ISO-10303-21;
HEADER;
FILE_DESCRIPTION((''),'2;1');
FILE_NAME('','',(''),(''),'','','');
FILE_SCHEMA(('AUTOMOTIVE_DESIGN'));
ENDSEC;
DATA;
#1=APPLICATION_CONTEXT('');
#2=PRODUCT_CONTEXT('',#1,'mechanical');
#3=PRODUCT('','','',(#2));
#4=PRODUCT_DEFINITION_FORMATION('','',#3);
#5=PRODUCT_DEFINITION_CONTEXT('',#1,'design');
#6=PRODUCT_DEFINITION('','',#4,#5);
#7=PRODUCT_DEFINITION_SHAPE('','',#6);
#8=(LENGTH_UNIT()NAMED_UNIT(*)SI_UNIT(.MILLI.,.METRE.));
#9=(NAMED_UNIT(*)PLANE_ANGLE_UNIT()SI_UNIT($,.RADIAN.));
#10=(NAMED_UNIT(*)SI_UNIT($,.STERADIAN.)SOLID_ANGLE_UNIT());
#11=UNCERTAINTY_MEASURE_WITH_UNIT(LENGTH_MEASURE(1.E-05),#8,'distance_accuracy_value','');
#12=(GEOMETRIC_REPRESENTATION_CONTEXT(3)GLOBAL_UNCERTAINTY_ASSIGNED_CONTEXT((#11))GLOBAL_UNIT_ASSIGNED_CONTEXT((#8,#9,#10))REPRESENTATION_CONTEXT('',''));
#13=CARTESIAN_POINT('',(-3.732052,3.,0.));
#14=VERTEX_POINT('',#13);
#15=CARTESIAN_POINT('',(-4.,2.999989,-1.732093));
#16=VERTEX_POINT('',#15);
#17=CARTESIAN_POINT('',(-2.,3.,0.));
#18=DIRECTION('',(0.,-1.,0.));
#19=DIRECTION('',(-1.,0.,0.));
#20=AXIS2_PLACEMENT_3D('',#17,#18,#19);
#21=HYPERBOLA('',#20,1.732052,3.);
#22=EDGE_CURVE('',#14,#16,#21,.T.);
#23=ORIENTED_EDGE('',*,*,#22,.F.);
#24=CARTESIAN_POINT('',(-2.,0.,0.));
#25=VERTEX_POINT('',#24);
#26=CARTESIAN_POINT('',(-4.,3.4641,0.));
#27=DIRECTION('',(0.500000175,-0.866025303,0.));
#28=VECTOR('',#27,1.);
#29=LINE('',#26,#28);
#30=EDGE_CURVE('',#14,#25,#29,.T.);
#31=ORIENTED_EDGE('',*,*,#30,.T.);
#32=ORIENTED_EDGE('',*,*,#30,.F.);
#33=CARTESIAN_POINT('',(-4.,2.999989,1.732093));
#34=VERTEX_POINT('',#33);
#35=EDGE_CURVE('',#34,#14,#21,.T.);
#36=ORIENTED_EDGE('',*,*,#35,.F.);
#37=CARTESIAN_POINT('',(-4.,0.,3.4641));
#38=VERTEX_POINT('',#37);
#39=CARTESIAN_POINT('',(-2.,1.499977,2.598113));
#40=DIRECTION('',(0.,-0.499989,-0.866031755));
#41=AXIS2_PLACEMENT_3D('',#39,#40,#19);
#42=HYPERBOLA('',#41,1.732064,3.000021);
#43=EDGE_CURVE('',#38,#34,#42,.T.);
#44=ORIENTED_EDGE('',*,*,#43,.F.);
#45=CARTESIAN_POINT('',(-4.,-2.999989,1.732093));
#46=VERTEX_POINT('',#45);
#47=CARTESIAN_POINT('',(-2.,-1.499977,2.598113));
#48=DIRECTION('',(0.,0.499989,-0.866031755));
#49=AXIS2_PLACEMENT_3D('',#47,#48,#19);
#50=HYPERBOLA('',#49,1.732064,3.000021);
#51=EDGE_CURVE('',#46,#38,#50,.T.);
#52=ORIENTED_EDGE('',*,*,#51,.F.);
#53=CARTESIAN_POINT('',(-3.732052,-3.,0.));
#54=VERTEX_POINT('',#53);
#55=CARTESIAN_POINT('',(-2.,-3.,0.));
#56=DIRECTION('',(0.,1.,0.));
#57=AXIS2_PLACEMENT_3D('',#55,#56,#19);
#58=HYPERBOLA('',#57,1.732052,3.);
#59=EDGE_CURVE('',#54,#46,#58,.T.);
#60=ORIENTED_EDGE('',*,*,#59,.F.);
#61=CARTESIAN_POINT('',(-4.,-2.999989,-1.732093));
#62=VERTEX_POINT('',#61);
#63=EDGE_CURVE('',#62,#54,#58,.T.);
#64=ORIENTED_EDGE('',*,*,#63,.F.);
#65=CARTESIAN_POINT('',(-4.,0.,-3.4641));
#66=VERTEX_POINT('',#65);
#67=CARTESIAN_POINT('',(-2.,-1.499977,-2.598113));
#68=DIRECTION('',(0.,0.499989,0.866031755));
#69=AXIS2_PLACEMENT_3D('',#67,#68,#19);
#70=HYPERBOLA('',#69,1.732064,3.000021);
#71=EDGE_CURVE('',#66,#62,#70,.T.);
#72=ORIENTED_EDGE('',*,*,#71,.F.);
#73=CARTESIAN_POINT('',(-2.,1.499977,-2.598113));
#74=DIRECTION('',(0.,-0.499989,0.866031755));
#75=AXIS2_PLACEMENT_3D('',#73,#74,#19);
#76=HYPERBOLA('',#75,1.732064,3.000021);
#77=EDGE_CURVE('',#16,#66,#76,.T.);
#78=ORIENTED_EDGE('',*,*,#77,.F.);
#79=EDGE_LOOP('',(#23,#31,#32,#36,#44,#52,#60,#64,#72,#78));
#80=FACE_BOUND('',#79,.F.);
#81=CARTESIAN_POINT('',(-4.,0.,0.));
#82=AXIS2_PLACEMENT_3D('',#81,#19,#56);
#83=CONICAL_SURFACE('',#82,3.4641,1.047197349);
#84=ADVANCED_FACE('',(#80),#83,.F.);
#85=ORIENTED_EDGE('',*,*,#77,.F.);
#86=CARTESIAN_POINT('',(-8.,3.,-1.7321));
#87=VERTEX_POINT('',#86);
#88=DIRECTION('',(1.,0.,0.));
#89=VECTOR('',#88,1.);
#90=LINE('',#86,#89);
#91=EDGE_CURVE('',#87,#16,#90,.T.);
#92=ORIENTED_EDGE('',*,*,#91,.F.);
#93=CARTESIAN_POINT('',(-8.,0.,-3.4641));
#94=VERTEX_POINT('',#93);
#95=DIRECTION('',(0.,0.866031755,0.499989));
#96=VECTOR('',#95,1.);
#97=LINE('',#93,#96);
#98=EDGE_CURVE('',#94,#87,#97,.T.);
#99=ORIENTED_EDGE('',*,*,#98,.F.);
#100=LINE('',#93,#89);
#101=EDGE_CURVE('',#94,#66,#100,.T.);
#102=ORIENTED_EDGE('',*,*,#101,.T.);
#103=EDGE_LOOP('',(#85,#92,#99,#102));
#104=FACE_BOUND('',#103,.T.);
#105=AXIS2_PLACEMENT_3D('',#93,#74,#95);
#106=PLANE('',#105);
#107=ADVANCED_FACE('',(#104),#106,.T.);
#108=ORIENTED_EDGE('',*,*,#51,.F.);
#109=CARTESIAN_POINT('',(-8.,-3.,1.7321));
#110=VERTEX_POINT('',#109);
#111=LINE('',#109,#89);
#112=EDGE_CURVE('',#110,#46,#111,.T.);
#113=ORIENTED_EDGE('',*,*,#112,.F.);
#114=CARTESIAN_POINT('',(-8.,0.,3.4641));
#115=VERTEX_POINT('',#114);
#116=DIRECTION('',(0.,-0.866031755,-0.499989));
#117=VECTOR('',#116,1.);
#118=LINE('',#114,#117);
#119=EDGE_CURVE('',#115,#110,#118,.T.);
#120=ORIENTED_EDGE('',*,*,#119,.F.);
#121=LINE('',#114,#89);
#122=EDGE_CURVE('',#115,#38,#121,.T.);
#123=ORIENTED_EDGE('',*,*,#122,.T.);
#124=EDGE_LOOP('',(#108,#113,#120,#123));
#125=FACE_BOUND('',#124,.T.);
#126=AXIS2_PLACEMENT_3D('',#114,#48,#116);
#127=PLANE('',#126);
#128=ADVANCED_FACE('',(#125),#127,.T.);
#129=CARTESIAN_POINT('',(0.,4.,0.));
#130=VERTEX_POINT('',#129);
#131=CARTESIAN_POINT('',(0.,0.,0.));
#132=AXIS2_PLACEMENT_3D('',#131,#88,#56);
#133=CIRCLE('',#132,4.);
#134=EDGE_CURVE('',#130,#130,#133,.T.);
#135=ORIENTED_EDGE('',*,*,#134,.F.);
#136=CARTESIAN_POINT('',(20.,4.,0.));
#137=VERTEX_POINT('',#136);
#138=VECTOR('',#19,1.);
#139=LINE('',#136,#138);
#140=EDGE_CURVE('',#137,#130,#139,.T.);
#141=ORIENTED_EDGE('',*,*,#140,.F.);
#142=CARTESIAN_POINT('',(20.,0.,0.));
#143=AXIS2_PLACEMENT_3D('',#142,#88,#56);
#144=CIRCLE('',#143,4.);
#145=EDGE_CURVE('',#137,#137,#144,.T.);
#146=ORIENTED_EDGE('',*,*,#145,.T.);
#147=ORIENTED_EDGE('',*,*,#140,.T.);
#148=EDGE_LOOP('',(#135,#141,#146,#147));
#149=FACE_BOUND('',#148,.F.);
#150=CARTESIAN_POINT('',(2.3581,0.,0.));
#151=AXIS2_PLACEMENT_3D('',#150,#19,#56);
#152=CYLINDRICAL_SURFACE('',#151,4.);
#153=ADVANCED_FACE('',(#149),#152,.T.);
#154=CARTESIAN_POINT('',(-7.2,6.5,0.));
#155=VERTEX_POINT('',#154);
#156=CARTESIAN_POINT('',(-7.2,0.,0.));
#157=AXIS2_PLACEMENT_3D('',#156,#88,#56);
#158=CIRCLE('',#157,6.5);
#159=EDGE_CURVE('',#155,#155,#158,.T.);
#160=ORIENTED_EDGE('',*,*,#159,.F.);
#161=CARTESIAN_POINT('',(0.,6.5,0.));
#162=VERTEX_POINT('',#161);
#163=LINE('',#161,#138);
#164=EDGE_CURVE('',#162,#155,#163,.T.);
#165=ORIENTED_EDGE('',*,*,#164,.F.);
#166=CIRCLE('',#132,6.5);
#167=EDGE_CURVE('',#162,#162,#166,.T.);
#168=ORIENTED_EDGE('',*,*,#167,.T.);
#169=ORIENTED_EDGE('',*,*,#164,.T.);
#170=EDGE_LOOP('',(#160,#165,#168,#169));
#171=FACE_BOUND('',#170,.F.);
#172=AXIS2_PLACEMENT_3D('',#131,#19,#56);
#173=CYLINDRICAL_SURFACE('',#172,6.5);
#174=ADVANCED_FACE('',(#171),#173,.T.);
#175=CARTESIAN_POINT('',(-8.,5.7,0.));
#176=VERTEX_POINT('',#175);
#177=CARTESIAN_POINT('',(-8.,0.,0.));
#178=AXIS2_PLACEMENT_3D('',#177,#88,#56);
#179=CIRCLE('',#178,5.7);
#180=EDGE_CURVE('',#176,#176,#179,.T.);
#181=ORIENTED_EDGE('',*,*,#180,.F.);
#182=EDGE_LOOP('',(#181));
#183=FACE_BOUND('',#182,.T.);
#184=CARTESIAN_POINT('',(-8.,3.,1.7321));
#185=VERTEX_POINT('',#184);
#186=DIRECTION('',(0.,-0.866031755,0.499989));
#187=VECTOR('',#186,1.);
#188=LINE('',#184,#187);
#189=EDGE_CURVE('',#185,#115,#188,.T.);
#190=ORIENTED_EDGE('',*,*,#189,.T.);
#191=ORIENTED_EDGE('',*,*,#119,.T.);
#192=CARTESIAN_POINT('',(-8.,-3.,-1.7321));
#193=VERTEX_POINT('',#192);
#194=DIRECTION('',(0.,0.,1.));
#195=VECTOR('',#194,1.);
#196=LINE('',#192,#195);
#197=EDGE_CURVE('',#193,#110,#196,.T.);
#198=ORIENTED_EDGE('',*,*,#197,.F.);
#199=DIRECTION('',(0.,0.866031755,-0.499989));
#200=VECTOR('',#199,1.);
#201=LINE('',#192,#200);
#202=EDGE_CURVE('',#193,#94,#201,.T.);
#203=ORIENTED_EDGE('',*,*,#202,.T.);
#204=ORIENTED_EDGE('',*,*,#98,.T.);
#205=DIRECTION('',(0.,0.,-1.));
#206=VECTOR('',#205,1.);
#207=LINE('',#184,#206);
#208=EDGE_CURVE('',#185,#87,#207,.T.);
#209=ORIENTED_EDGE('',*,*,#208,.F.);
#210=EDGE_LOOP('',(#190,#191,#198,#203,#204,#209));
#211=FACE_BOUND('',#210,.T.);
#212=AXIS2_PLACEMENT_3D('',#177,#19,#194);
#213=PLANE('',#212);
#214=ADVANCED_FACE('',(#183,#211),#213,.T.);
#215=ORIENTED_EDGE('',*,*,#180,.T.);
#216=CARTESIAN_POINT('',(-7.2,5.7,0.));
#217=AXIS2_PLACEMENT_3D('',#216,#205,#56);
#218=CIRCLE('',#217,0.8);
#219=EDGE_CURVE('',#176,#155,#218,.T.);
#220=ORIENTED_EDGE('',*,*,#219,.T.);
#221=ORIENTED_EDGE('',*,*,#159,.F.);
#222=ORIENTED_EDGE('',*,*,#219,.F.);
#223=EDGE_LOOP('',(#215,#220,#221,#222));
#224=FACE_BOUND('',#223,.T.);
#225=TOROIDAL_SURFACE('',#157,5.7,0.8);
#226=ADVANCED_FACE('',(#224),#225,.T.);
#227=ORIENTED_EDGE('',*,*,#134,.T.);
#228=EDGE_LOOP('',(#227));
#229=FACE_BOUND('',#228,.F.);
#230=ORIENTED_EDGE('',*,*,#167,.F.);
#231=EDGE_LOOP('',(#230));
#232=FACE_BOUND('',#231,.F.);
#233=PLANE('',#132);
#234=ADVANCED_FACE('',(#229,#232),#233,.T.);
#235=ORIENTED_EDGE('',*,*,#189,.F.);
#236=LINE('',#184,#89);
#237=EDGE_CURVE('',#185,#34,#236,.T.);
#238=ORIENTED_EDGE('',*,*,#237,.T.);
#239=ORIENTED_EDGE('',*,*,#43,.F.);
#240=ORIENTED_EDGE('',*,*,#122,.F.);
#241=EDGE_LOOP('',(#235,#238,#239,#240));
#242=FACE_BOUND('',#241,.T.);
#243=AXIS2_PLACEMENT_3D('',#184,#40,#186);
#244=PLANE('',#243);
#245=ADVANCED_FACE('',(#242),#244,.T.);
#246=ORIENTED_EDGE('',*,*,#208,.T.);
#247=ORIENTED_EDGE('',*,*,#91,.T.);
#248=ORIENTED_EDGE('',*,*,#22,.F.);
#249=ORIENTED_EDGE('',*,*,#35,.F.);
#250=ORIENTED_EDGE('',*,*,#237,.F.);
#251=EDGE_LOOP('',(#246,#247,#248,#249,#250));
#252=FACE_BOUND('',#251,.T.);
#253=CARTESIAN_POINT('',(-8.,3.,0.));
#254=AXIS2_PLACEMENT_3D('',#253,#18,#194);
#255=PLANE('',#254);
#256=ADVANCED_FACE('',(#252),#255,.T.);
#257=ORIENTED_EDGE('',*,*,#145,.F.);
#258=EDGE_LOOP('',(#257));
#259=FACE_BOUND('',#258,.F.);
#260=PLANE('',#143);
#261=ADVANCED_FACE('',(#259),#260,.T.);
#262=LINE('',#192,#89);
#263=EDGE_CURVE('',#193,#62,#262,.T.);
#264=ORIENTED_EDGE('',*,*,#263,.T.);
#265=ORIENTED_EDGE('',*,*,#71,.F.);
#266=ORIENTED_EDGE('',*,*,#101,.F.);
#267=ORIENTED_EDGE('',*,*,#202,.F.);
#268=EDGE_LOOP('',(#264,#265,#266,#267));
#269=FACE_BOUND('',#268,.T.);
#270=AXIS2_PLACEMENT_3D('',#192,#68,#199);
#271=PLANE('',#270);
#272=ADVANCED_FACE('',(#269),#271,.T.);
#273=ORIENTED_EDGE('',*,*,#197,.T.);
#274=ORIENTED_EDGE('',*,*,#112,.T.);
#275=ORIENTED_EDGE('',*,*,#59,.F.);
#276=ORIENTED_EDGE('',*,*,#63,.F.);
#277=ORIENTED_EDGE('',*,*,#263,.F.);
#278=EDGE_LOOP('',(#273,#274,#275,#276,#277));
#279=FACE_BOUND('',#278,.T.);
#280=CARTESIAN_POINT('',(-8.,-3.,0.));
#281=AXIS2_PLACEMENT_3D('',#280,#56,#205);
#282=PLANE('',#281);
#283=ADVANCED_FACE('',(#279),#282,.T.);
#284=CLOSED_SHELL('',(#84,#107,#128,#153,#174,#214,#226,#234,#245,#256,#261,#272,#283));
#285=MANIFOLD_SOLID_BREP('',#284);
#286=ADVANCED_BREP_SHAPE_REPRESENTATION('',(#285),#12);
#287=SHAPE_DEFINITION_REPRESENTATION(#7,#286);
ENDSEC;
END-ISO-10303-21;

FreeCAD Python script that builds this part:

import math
import FreeCAD as App
import Part
import Sketcher
Q = App.Units.Quantity


def edges_at(feature, points):
    """Names of the edges that pass closest to the given points."""
    edges = feature.Shape.Edges
    near = lambda p: min(range(len(edges)), key=lambda i: edges[i].distToShape(Part.Vertex(*p))[0])
    return sorted({f"Edge{near(p) + 1}" for p in points})

doc = App.newDocument("Part")
body = doc.addObject("PartDesign::Body", "Body")

sketch1 = body.newObject("Sketcher::SketchObject", "Sketch")
sketch1.AttachmentSupport = (doc.getObject("XY_Plane"), [""])
sketch1.MapMode = "FlatFace"
sketch1.addGeometry(Part.LineSegment(App.Vector(-4, 3.5, 0), App.Vector(-2, 0, 0)), False)
sketch1.addGeometry(Part.LineSegment(App.Vector(-2, 0, 0), App.Vector(20, 0, 0)), False)
sketch1.addGeometry(Part.LineSegment(App.Vector(20, 0, 0), App.Vector(20, 4, 0)), False)
sketch1.addGeometry(Part.LineSegment(App.Vector(20, 4, 0), App.Vector(0, 4, 0)), False)
sketch1.addGeometry(Part.LineSegment(App.Vector(0, 4, 0), App.Vector(0, 6.5, 0)), False)
sketch1.addGeometry(Part.LineSegment(App.Vector(0, 6.5, 0), App.Vector(-8, 6.5, 0)), False)
sketch1.addGeometry(Part.LineSegment(App.Vector(-8, 6.5, 0), App.Vector(-8, 3.5, 0)), False)
sketch1.addGeometry(Part.LineSegment(App.Vector(-8, 3.5, 0), App.Vector(-4, 3.5, 0)), False)
sketch1.addConstraint(Sketcher.Constraint("Coincident", 0, 2, 1, 1))
sketch1.addConstraint(Sketcher.Constraint("Coincident", 1, 2, 2, 1))
sketch1.addConstraint(Sketcher.Constraint("Coincident", 2, 2, 3, 1))
sketch1.addConstraint(Sketcher.Constraint("Coincident", 3, 2, 4, 1))
sketch1.addConstraint(Sketcher.Constraint("Coincident", 4, 2, 5, 1))
sketch1.addConstraint(Sketcher.Constraint("Coincident", 5, 2, 6, 1))
sketch1.addConstraint(Sketcher.Constraint("Coincident", 6, 2, 7, 1))
sketch1.addConstraint(Sketcher.Constraint("Coincident", 7, 2, 0, 1))
sketch1.addConstraint(Sketcher.Constraint("Horizontal", 1))
sketch1.addConstraint(Sketcher.Constraint("Vertical", 2))
sketch1.addConstraint(Sketcher.Constraint("Horizontal", 3))
sketch1.addConstraint(Sketcher.Constraint("Vertical", 4))
sketch1.addConstraint(Sketcher.Constraint("Horizontal", 5))
sketch1.addConstraint(Sketcher.Constraint("Vertical", 6))
sketch1.addConstraint(Sketcher.Constraint("Horizontal", 7))
sketch1.addConstraint(Sketcher.Constraint("PointOnObject", 0, 2, -1))
sketch1.addConstraint(Sketcher.Constraint("PointOnObject", 3, 2, -2))
sketch1.addConstraint(Sketcher.Constraint("Equal", 7, 2))
sketch1.addConstraint(Sketcher.Constraint("DistanceX", 3, 2, 3, 1, 20.0))
sketch1.addConstraint(Sketcher.Constraint("DistanceX", 5, 2, 5, 1, 8.0))
sketch1.addConstraint(Sketcher.Constraint("DistanceX", 7, 1, 7, 2, 4.0))
sketch1.addConstraint(Sketcher.Constraint("Angle", 0, Q("-60 deg")))
sketch1.addConstraint(Sketcher.Constraint("Distance", 0, 4.0))
sketch1.addConstraint(Sketcher.Constraint("DistanceY", 4, 1, 4, 2, 2.5))
revolution = body.newObject("PartDesign::Revolution", "Revolution")
revolution.Profile = sketch1
revolution.ReferenceAxis = (sketch1, ["H_Axis"])
revolution.Angle = 360

sketch2 = body.newObject("Sketcher::SketchObject", "Sketch001")
sketch2.AttachmentSupport = (doc.getObject("YZ_Plane"), [""])
sketch2.MapMode = "FlatFace"
sketch2.AttachmentOffset = App.Placement(App.Vector(0, 0, -8), App.Rotation())
sketch2.addGeometry(Part.LineSegment(App.Vector(3, 1.7, 0), App.Vector(0, 3.5, 0)), False)
sketch2.addGeometry(Part.ArcOfCircle(Part.Circle(App.Vector(0, 0, 0), App.Vector(0, 0, 1), 3.5), math.radians(30), math.radians(90)), False)
sketch2.addGeometry(Part.ArcOfCircle(Part.Circle(App.Vector(0, 0, 0), App.Vector(0, 0, 1), 3.5), math.radians(90), math.radians(150)), False)
sketch2.addGeometry(Part.LineSegment(App.Vector(0, 3.5, 0), App.Vector(-3, 1.7, 0)), False)
sketch2.addGeometry(Part.ArcOfCircle(Part.Circle(App.Vector(0, 0, 0), App.Vector(0, 0, 1), 3.5), math.radians(-30), math.radians(30)), False)
sketch2.addGeometry(Part.LineSegment(App.Vector(3, 1.7, 0), App.Vector(3, -1.7, 0)), False)
sketch2.addGeometry(Part.LineSegment(App.Vector(-3, 1.7, 0), App.Vector(-3, -1.7, 0)), False)
sketch2.addGeometry(Part.ArcOfCircle(Part.Circle(App.Vector(0, 0, 0), App.Vector(0, 0, 1), 3.5), math.radians(150), math.radians(210)), False)
sketch2.addGeometry(Part.LineSegment(App.Vector(-3, -1.7, 0), App.Vector(0, -3.5, 0)), False)
sketch2.addGeometry(Part.ArcOfCircle(Part.Circle(App.Vector(0, 0, 0), App.Vector(0, 0, 1), 3.5), math.radians(-150), math.radians(-90)), False)
sketch2.addGeometry(Part.ArcOfCircle(Part.Circle(App.Vector(0, 0, 0), App.Vector(0, 0, 1), 3.5), math.radians(-90), math.radians(-30)), False)
sketch2.addGeometry(Part.LineSegment(App.Vector(0, -3.5, 0), App.Vector(3, -1.7, 0)), False)
sketch2.addConstraint(Sketcher.Constraint("Coincident", 0, 1, 1, 1))
sketch2.addConstraint(Sketcher.Constraint("Coincident", 1, 2, 0, 2))
sketch2.addConstraint(Sketcher.Constraint("Coincident", 2, 1, 3, 1))
sketch2.addConstraint(Sketcher.Constraint("Coincident", 3, 2, 2, 2))
sketch2.addConstraint(Sketcher.Constraint("Coincident", 4, 1, 5, 2))
sketch2.addConstraint(Sketcher.Constraint("Coincident", 5, 1, 4, 2))
sketch2.addConstraint(Sketcher.Constraint("Coincident", 6, 1, 7, 1))
sketch2.addConstraint(Sketcher.Constraint("Coincident", 7, 2, 6, 2))
sketch2.addConstraint(Sketcher.Constraint("Coincident", 8, 1, 9, 1))
sketch2.addConstraint(Sketcher.Constraint("Coincident", 9, 2, 8, 2))
sketch2.addConstraint(Sketcher.Constraint("Coincident", 10, 1, 11, 1))
sketch2.addConstraint(Sketcher.Constraint("Coincident", 11, 2, 10, 2))
sketch2.addConstraint(Sketcher.Constraint("Vertical", 5))
sketch2.addConstraint(Sketcher.Constraint("Vertical", 6))
sketch2.addConstraint(Sketcher.Constraint("Coincident", 1, 3, -1, 1))
sketch2.addConstraint(Sketcher.Constraint("Coincident", 2, 3, -1, 1))
sketch2.addConstraint(Sketcher.Constraint("Coincident", 4, 3, -1, 1))
sketch2.addConstraint(Sketcher.Constraint("Coincident", 7, 3, -1, 1))
sketch2.addConstraint(Sketcher.Constraint("Coincident", 9, 3, -1, 1))
sketch2.addConstraint(Sketcher.Constraint("Coincident", 10, 3, -1, 1))
sketch2.addConstraint(Sketcher.Constraint("Coincident", 2, 1, 1, 2))
sketch2.addConstraint(Sketcher.Constraint("Coincident", 5, 1, 0, 1))
sketch2.addConstraint(Sketcher.Constraint("Coincident", 6, 1, 3, 2))
sketch2.addConstraint(Sketcher.Constraint("Coincident", 8, 1, 7, 2))
sketch2.addConstraint(Sketcher.Constraint("Coincident", 10, 1, 9, 2))
sketch2.addConstraint(Sketcher.Constraint("PointOnObject", 1, 2, -2))
sketch2.addConstraint(Sketcher.Constraint("PointOnObject", 9, 2, -2))
sketch2.addConstraint(Sketcher.Constraint("Parallel", 0, 8))
sketch2.addConstraint(Sketcher.Constraint("Parallel", 3, 11))
sketch2.addConstraint(Sketcher.Constraint("Angle", 0, Q("150.0007 deg")))
sketch2.addConstraint(Sketcher.Constraint("DistanceX", -1, 1, 0, 1, 3.0))
pad1 = body.newObject("PartDesign::Pad", "Pad")
pad1.Profile = sketch2
pad1.Length = 4.2679
doc.recompute()

fillet = body.newObject("PartDesign::Fillet", "Fillet")
fillet.Base = (pad1, edges_at(pad1, [(-8, -6.5, 0)]))
fillet.Radius = 0.8

doc.recompute()
